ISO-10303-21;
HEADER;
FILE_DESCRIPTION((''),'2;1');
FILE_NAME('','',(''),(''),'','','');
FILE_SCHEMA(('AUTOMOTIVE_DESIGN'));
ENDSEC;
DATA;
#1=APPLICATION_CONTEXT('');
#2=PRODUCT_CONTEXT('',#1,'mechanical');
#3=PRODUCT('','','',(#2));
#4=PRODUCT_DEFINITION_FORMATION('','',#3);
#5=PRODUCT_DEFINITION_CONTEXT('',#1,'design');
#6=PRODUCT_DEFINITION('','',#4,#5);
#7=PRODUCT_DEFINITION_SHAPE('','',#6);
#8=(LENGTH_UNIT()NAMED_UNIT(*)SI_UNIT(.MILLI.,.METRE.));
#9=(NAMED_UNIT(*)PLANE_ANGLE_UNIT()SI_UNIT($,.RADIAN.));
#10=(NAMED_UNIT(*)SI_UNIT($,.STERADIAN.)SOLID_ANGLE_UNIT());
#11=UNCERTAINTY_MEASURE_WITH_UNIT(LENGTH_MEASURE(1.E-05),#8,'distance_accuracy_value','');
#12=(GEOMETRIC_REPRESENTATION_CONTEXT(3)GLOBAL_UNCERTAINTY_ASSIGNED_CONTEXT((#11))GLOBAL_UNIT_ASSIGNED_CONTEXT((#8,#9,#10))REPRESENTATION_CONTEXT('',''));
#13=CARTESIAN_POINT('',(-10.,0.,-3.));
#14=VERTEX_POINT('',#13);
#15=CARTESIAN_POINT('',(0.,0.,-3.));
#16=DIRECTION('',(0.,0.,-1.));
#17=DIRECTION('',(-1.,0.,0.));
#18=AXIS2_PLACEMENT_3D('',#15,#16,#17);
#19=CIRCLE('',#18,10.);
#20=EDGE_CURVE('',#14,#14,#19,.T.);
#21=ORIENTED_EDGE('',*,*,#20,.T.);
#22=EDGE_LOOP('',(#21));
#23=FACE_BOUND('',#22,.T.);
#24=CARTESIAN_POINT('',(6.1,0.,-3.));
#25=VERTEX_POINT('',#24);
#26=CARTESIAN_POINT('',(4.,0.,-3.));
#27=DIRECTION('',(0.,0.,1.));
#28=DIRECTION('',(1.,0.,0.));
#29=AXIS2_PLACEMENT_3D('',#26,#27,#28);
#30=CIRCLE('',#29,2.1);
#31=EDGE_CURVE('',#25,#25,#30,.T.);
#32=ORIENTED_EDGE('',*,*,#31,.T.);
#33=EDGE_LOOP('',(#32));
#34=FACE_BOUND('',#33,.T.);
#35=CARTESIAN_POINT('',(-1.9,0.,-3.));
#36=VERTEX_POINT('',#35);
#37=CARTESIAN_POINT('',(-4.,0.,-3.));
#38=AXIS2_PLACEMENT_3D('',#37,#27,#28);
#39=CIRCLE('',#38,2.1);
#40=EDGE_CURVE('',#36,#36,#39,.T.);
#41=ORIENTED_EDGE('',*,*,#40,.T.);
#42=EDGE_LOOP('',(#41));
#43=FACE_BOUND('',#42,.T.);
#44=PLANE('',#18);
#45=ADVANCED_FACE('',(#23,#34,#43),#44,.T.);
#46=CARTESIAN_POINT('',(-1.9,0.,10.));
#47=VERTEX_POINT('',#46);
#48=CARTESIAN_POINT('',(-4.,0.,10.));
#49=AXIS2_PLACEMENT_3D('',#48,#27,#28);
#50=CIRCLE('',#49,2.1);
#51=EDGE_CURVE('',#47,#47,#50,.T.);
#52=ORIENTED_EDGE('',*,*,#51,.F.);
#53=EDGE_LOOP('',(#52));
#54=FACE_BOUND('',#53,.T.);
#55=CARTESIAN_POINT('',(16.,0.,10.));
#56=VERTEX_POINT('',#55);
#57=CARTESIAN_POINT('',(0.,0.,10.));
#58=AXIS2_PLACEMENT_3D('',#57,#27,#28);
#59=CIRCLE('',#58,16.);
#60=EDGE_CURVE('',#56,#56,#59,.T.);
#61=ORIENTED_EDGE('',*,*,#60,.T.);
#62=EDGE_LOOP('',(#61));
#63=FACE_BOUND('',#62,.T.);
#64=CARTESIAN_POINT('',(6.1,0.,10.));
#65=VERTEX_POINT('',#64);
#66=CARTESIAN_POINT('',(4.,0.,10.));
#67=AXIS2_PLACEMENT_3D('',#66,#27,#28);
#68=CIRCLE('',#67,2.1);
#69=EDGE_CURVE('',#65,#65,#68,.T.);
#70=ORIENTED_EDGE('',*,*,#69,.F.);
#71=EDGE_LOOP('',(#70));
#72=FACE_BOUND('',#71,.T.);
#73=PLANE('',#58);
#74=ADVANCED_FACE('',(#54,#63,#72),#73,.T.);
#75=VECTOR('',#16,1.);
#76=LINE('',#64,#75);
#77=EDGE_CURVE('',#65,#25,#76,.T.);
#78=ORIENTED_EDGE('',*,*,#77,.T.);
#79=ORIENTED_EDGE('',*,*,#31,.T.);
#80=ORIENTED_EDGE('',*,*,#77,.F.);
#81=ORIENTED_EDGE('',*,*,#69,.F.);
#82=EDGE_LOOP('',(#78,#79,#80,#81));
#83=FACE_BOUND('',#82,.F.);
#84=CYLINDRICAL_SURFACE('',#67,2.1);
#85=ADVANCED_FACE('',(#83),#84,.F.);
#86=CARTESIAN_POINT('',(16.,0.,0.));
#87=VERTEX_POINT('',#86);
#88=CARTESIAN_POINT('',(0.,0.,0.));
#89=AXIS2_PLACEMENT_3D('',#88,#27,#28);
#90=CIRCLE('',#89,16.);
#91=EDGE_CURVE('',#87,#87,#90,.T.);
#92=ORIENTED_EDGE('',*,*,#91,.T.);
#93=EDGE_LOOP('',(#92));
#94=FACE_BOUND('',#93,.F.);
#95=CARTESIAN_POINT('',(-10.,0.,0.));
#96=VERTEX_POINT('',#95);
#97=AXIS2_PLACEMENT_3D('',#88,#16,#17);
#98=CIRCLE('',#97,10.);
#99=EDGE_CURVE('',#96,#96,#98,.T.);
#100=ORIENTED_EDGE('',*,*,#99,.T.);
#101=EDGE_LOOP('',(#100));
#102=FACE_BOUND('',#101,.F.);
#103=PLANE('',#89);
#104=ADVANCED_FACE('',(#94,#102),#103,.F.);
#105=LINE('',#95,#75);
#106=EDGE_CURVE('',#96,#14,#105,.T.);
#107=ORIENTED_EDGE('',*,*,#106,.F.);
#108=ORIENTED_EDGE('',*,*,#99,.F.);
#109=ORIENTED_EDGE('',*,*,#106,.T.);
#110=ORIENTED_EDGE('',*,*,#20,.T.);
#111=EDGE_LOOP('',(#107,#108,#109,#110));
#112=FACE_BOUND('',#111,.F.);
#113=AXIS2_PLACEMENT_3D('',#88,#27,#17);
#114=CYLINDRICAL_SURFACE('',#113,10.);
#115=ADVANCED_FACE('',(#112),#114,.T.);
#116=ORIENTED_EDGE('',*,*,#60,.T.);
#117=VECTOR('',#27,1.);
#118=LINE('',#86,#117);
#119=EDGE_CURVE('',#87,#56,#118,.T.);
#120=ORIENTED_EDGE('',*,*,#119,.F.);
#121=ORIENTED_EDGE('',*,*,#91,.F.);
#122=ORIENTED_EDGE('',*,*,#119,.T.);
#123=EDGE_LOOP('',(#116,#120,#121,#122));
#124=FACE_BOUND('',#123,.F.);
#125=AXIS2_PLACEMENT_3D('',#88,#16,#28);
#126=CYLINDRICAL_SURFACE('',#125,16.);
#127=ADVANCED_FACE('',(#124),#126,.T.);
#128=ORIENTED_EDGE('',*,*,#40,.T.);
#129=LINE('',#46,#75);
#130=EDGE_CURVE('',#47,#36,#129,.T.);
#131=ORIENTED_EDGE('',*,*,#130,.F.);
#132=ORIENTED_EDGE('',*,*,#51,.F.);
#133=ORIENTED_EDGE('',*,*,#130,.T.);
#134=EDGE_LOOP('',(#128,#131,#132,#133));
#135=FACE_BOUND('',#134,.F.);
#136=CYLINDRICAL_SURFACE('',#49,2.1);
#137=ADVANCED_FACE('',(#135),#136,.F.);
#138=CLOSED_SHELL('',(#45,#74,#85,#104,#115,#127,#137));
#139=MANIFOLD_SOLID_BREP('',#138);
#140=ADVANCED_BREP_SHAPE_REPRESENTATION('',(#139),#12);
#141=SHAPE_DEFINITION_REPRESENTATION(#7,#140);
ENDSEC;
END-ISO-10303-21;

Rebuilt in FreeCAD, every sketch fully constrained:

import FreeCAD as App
import Part
import Sketcher
from FreeCAD import Vector

doc = App.newDocument("Part")
body = doc.addObject("PartDesign::Body", "Body")

sketch1 = body.newObject("Sketcher::SketchObject", "Sketch")
sketch1.AttachmentSupport = (doc.getObject("XY_Plane"), [""])
sketch1.MapMode = "FlatFace"
sketch1.addGeometry(Part.Circle(Vector(0, 0, 0), Vector(0, 0, 1), 16), False)
sketch1.addConstraint([
    Sketcher.Constraint("Coincident", 0, 3, -1, 1),
    Sketcher.Constraint("Diameter", 0, 32.0),
])
pad1 = body.newObject("PartDesign::Pad", "Pad")
pad1.Profile = sketch1
pad1.Length = 10

sketch2 = body.newObject("Sketcher::SketchObject", "Sketch001")
sketch2.AttachmentSupport = (doc.getObject("XY_Plane"), [""])
sketch2.MapMode = "FlatFace"
sketch2.addGeometry(Part.Circle(Vector(0, 0, 0), Vector(0, 0, 1), 10), False)
sketch2.addConstraint([
    Sketcher.Constraint("Coincident", 0, 3, -1, 1),
    Sketcher.Constraint("Diameter", 0, 20.0),
])
pad2 = body.newObject("PartDesign::Pad", "Pad001")
pad2.Profile = sketch2
pad2.Length = 3
pad2.Reversed = True

sketch3 = body.newObject("Sketcher::SketchObject", "Sketch002")
sketch3.AttachmentSupport = (doc.getObject("XY_Plane"), [""])
sketch3.MapMode = "FlatFace"
sketch3.AttachmentOffset = App.Placement(Vector(0, 0, 10), App.Rotation())
sketch3.addGeometry([
    Part.Circle(Vector(-4, 0, 0), Vector(0, 0, 1), 2.1),
    Part.Circle(Vector(4, 0, 0), Vector(0, 0, 1), 2.1),
], False)
sketch3.addConstraint([
    Sketcher.Constraint("Equal", 0, 1),
    Sketcher.Constraint("Symmetric", 0, 3, 1, 3, -1, 1),
    Sketcher.Constraint("PointOnObject", 0, 3, -1),
    Sketcher.Constraint("Diameter", 0, 4.2),
    Sketcher.Constraint("DistanceX", 0, 3, -1, 1, 4.0),
])
pocket1 = body.newObject("PartDesign::Pocket", "Pocket")
pocket1.Profile = sketch3
pocket1.Type = "ThroughAll"

doc.recompute()
